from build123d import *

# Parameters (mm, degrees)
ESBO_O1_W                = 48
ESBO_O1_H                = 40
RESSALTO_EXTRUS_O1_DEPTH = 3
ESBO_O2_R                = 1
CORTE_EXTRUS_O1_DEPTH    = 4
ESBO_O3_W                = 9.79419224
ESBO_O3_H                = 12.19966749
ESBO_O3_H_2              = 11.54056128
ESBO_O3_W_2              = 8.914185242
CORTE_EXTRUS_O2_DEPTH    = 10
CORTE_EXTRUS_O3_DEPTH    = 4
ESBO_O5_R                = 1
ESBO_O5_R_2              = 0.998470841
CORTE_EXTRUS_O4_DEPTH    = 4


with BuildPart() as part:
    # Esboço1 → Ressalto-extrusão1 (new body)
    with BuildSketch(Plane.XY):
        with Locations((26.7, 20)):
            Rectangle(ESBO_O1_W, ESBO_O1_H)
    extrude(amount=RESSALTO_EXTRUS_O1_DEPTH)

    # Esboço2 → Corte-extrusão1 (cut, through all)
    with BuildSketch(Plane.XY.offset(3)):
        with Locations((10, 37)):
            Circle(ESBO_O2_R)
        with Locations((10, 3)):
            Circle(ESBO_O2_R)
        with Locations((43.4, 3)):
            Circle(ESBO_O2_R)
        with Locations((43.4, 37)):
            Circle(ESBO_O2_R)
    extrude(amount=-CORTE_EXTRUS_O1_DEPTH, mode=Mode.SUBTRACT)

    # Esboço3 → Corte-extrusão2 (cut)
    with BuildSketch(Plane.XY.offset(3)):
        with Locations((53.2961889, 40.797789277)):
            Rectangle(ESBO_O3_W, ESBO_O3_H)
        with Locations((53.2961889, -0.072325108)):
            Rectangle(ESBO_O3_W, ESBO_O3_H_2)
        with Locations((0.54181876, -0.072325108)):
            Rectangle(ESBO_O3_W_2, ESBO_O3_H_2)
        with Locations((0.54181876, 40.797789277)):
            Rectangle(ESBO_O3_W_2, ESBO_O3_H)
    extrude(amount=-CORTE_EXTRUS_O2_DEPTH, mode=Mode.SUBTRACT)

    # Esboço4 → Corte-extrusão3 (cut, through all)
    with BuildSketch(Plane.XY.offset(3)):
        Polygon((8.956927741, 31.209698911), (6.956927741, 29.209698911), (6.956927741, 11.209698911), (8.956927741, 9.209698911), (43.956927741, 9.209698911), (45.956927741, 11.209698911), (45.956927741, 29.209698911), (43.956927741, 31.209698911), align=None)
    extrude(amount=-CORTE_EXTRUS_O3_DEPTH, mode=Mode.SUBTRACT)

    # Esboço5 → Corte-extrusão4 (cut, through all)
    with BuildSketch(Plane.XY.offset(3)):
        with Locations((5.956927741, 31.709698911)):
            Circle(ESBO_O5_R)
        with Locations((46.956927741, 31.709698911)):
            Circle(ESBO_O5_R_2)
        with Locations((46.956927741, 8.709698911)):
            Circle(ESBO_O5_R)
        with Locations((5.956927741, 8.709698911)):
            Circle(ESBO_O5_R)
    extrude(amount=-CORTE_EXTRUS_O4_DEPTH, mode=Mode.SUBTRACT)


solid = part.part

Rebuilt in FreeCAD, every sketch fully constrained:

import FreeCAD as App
import Part
import Sketcher

V = App.Vector

doc = App.newDocument("Part")
body = doc.addObject("PartDesign::Body", "Body")

# Sketch on XY plane
sketch1 = body.newObject("Sketcher::SketchObject", "Sketch")
sketch1.AttachmentSupport = (doc.getObject("XY_Plane"), [""])
sketch1.MapMode = "FlatFace"
sketch1.addGeometry(Part.LineSegment(V(2.7, 40, 0), V(2.7, 0, 0)), False)
sketch1.addGeometry(Part.LineSegment(V(2.7, 0, 0), V(50.7, 0, 0)), False)
sketch1.addGeometry(Part.LineSegment(V(50.7, 0, 0), V(50.7, 40, 0)), False)
sketch1.addGeometry(Part.LineSegment(V(50.7, 40, 0), V(2.7, 40, 0)), False)
sketch1.addConstraint(Sketcher.Constraint("Coincident", 0, 2, 1, 1))
sketch1.addConstraint(Sketcher.Constraint("Coincident", 1, 2, 2, 1))
sketch1.addConstraint(Sketcher.Constraint("Coincident", 2, 2, 3, 1))
sketch1.addConstraint(Sketcher.Constraint("Coincident", 3, 2, 0, 1))
sketch1.addConstraint(Sketcher.Constraint("Vertical", 0))
sketch1.addConstraint(Sketcher.Constraint("Horizontal", 1))
sketch1.addConstraint(Sketcher.Constraint("Vertical", 2))
sketch1.addConstraint(Sketcher.Constraint("Horizontal", 3))
sketch1.addConstraint(Sketcher.Constraint("PointOnObject", 0, 2, -1))
sketch1.addConstraint(Sketcher.Constraint("DistanceX", 1, 1, 1, 2, 48.0))
sketch1.addConstraint(Sketcher.Constraint("DistanceY", 0, 2, 0, 1, 40.0))
sketch1.addConstraint(Sketcher.Constraint("DistanceX", -1, 1, 0, 2, 2.7))
pad1 = body.newObject("PartDesign::Pad", "Pad")
pad1.Profile = sketch1
pad1.Length = 3

# Sketch on XY plane
sketch2 = body.newObject("Sketcher::SketchObject", "Sketch001")
sketch2.AttachmentSupport = (doc.getObject("XY_Plane"), [""])
sketch2.MapMode = "FlatFace"
sketch2.AttachmentOffset = App.Placement(V(0, 0, 3), App.Rotation())
sketch2.addGeometry(Part.Circle(V(10, 37, 0), V(0, 0, 1), 1), False)
sketch2.addGeometry(Part.Circle(V(10, 3, 0), V(0, 0, 1), 1), False)
sketch2.addGeometry(Part.Circle(V(43.4, 3, 0), V(0, 0, 1), 1), False)
sketch2.addGeometry(Part.Circle(V(43.4, 37, 0), V(0, 0, 1), 1), False)
sketch2.addConstraint(Sketcher.Constraint("Equal", 0, 1))
sketch2.addConstraint(Sketcher.Constraint("Equal", 1, 2))
sketch2.addConstraint(Sketcher.Constraint("Equal", 2, 3))
sketch2.addConstraint(Sketcher.Constraint("Horizontal", 1, 3, 2, 3))
sketch2.addConstraint(Sketcher.Constraint("Horizontal", 0, 3, 3, 3))
sketch2.addConstraint(Sketcher.Constraint("Vertical", 0, 3, 1, 3))
sketch2.addConstraint(Sketcher.Constraint("Vertical", 2, 3, 3, 3))
sketch2.addConstraint(Sketcher.Constraint("Diameter", 0, 2.0))
sketch2.addConstraint(Sketcher.Constraint("DistanceX", -1, 1, 0, 3, 10.0))
sketch2.addConstraint(Sketcher.Constraint("DistanceY", -1, 1, 0, 3, 37.0))
sketch2.addConstraint(Sketcher.Constraint("DistanceY", -1, 1, 1, 3, 3.0))
sketch2.addConstraint(Sketcher.Constraint("DistanceX", -1, 1, 2, 3, 43.4))
pocket1 = body.newObject("PartDesign::Pocket", "Pocket")
pocket1.Profile = sketch2
pocket1.Type = "ThroughAll"

# Sketch on XY plane
sketch3 = body.newObject("Sketcher::SketchObject", "Sketch002")
sketch3.AttachmentSupport = (doc.getObject("XY_Plane"), [""])
sketch3.MapMode = "FlatFace"
sketch3.AttachmentOffset = App.Placement(V(0, 0, 3), App.Rotation())
sketch3.addGeometry(Part.LineSegment(V(48.399093, 46.897623, 0), V(48.399093, 34.697956, 0)), False)
sketch3.addGeometry(Part.LineSegment(V(48.399093, 34.697956, 0), V(58.193285, 34.697956, 0)), False)
sketch3.addGeometry(Part.LineSegment(V(58.193285, 34.697956, 0), V(58.193285, 46.897623, 0)), False)
sketch3.addGeometry(Part.LineSegment(V(58.193285, 46.897623, 0), V(48.399093, 46.897623, 0)), False)
sketch3.addGeometry(Part.LineSegment(V(48.399093, 5.697956, 0), V(48.399093, -5.842606, 0)), False)
sketch3.addGeometry(Part.LineSegment(V(48.399093, -5.842606, 0), V(58.193285, -5.842606, 0)), False)
sketch3.addGeometry(Part.LineSegment(V(58.193285, -5.842606, 0), V(58.193285, 5.697956, 0)), False)
sketch3.addGeometry(Part.LineSegment(V(58.193285, 5.697956, 0), V(48.399093, 5.697956, 0)), False)
sketch3.addGeometry(Part.LineSegment(V(-3.915274, 5.697956, 0), V(-3.915274, -5.842606, 0)), False)
sketch3.addGeometry(Part.LineSegment(V(-3.915274, -5.842606, 0), V(4.998911, -5.842606, 0)), False)
sketch3.addGeometry(Part.LineSegment(V(4.998911, -5.842606, 0), V(4.998911, 5.697956, 0)), False)
sketch3.addGeometry(Part.LineSegment(V(4.998911, 5.697956, 0), V(-3.915274, 5.697956, 0)), False)
sketch3.addGeometry(Part.LineSegment(V(-3.915274, 46.897623, 0), V(-3.915274, 34.697956, 0)), False)
sketch3.addGeometry(Part.LineSegment(V(-3.915274, 34.697956, 0), V(4.998911, 34.697956, 0)), False)
sketch3.addGeometry(Part.LineSegment(V(4.998911, 34.697956, 0), V(4.998911, 46.897623, 0)), False)
sketch3.addGeometry(Part.LineSegment(V(4.998911, 46.897623, 0), V(-3.915274, 46.897623, 0)), False)
sketch3.addConstraint(Sketcher.Constraint("Coincident", 0, 2, 1, 1))
sketch3.addConstraint(Sketcher.Constraint("Coincident", 1, 2, 2, 1))
sketch3.addConstraint(Sketcher.Constraint("Coincident", 2, 2, 3, 1))
sketch3.addConstraint(Sketcher.Constraint("Coincident", 3, 2, 0, 1))
sketch3.addConstraint(Sketcher.Constraint("Coincident", 4, 2, 5, 1))
sketch3.addConstraint(Sketcher.Constraint("Coincident", 5, 2, 6, 1))
sketch3.addConstraint(Sketcher.Constraint("Coincident", 6, 2, 7, 1))
sketch3.addConstraint(Sketcher.Constraint("Coincident", 7, 2, 4, 1))
sketch3.addConstraint(Sketcher.Constraint("Coincident", 8, 2, 9, 1))
sketch3.addConstraint(Sketcher.Constraint("Coincident", 9, 2, 10, 1))
sketch3.addConstraint(Sketcher.Constraint("Coincident", 10, 2, 11, 1))
sketch3.addConstraint(Sketcher.Constraint("Coincident", 11, 2, 8, 1))
sketch3.addConstraint(Sketcher.Constraint("Coincident", 12, 2, 13, 1))
sketch3.addConstraint(Sketcher.Constraint("Coincident", 13, 2, 14, 1))
sketch3.addConstraint(Sketcher.Constraint("Coincident", 14, 2, 15, 1))
sketch3.addConstraint(Sketcher.Constraint("Coincident", 15, 2, 12, 1))
sketch3.addConstraint(Sketcher.Constraint("Vertical", 0))
sketch3.addConstraint(Sketcher.Constraint("Horizontal", 1))
sketch3.addConstraint(Sketcher.Constraint("Vertical", 2))
sketch3.addConstraint(Sketcher.Constraint("Horizontal", 3))
sketch3.addConstraint(Sketcher.Constraint("Vertical", 4))
sketch3.addConstraint(Sketcher.Constraint("Horizontal", 5))
sketch3.addConstraint(Sketcher.Constraint("Vertical", 6))
sketch3.addConstraint(Sketcher.Constraint("Horizontal", 7))
sketch3.addConstraint(Sketcher.Constraint("Vertical", 8))
sketch3.addConstraint(Sketcher.Constraint("Horizontal", 9))
sketch3.addConstraint(Sketcher.Constraint("Vertical", 10))
sketch3.addConstraint(Sketcher.Constraint("Horizontal", 11))
sketch3.addConstraint(Sketcher.Constraint("Vertical", 12))
sketch3.addConstraint(Sketcher.Constraint("Horizontal", 13))
sketch3.addConstraint(Sketcher.Constraint("Vertical", 14))
sketch3.addConstraint(Sketcher.Constraint("Horizontal", 15))
sketch3.addConstraint(Sketcher.Constraint("Horizontal", 5, 2, 8, 2))
sketch3.addConstraint(Sketcher.Constraint("Horizontal", 7, 2, 10, 2))
sketch3.addConstraint(Sketcher.Constraint("Horizontal", 1, 2, 12, 2))
sketch3.addConstraint(Sketcher.Constraint("Horizontal", 3, 2, 14, 2))
sketch3.addConstraint(Sketcher.Constraint("Vertical", 3, 2, 4, 2))
sketch3.addConstraint(Sketcher.Constraint("Vertical", 2, 2, 5, 2))
sketch3.addConstraint(Sketcher.Constraint("Vertical", 11, 2, 12, 2))
sketch3.addConstraint(Sketcher.Constraint("Vertical", 10, 2, 13, 2))
sketch3.addConstraint(Sketcher.Constraint("DistanceY", 6, 2, 1, 2, 29.0))
sketch3.addConstraint(Sketcher.Constraint("DistanceY", 4, 2, 4, 1, 11.540561))
sketch3.addConstraint(Sketcher.Constraint("DistanceX", 1, 1, 1, 2, 9.794192))
sketch3.addConstraint(Sketcher.Constraint("DistanceX", 9, 1, 9, 2, 8.914185))
sketch3.addConstraint(Sketcher.Constraint("DistanceY", 0, 2, 0, 1, 12.199667))
sketch3.addConstraint(Sketcher.Constraint("DistanceX", -1, 1, 9, 2, 4.998911))
sketch3.addConstraint(Sketcher.Constraint("DistanceX", 8, 2, 5, 2, 62.108559))
sketch3.addConstraint(Sketcher.Constraint("DistanceY", -1, 1, 0, 2, 34.697956))
pocket2 = body.newObject("PartDesign::Pocket", "Pocket001")
pocket2.Profile = sketch3
pocket2.Length = 10

# Sketch on XY plane
sketch4 = body.newObject("Sketcher::SketchObject", "Sketch003")
sketch4.AttachmentSupport = (doc.getObject("XY_Plane"), [""])
sketch4.MapMode = "FlatFace"
sketch4.AttachmentOffset = App.Placement(V(0, 0, 3), App.Rotation())
sketch4.addGeometry(Part.LineSegment(V(8.956928, 31.209699, 0), V(6.956928, 29.209699, 0)), False)
sketch4.addGeometry(Part.LineSegment(V(6.956928, 29.209699, 0), V(6.956928, 11.209699, 0)), False)
sketch4.addGeometry(Part.LineSegment(V(6.956928, 11.209699, 0), V(8.956928, 9.209699, 0)), False)
sketch4.addGeometry(Part.LineSegment(V(8.956928, 9.209699, 0), V(43.956928, 9.209699, 0)), False)
sketch4.addGeometry(Part.LineSegment(V(43.956928, 9.209699, 0), V(45.956928, 11.209699, 0)), False)
sketch4.addGeometry(Part.LineSegment(V(45.956928, 11.209699, 0), V(45.956928, 29.209699, 0)), False)
sketch4.addGeometry(Part.LineSegment(V(45.956928, 29.209699, 0), V(43.956928, 31.209699, 0)), False)
sketch4.addGeometry(Part.LineSegment(V(43.956928, 31.209699, 0), V(8.956928, 31.209699, 0)), False)
sketch4.addConstraint(Sketcher.Constraint("Coincident", 0, 2, 1, 1))
sketch4.addConstraint(Sketcher.Constraint("Coincident", 1, 2, 2, 1))
sketch4.addConstraint(Sketcher.Constraint("Coincident", 2, 2, 3, 1))
sketch4.addConstraint(Sketcher.Constraint("Coincident", 3, 2, 4, 1))
sketch4.addConstraint(Sketcher.Constraint("Coincident", 4, 2, 5, 1))
sketch4.addConstraint(Sketcher.Constraint("Coincident", 5, 2, 6, 1))
sketch4.addConstraint(Sketcher.Constraint("Coincident", 6, 2, 7, 1))
sketch4.addConstraint(Sketcher.Constraint("Coincident", 7, 2, 0, 1))
sketch4.addConstraint(Sketcher.Constraint("Vertical", 1))
sketch4.addConstraint(Sketcher.Constraint("Horizontal", 3))
sketch4.addConstraint(Sketcher.Constraint("Vertical", 5))
sketch4.addConstraint(Sketcher.Constraint("Horizontal", 7))
sketch4.addConstraint(Sketcher.Constraint("Perpendicular", 0, 2))
sketch4.addConstraint(Sketcher.Constraint("Perpendicular", 2, 4))
sketch4.addConstraint(Sketcher.Constraint("Perpendicular", 4, 6))
sketch4.addConstraint(Sketcher.Constraint("Horizontal", 1, 2, 4, 2))
sketch4.addConstraint(Sketcher.Constraint("Horizontal", 0, 2, 5, 2))
sketch4.addConstraint(Sketcher.Constraint("Vertical", 3, 2, 6, 2))
sketch4.addConstraint(Sketcher.Constraint("Vertical", 2, 2, 7, 2))
sketch4.addConstraint(Sketcher.Constraint("DistanceX", 3, 1, 3, 2, 35.0))
sketch4.addConstraint(Sketcher.Constraint("DistanceY", 1, 2, 1, 1, 18.0))
sketch4.addConstraint(Sketcher.Constraint("DistanceX", 1, 2, 2, 2, 2.0))
sketch4.addConstraint(Sketcher.Constraint("DistanceY", -1, 1, 0, 2, 29.209699))
sketch4.addConstraint(Sketcher.Constraint("DistanceX", -1, 1, 0, 2, 6.956928))
pocket3 = body.newObject("PartDesign::Pocket", "Pocket002")
pocket3.Profile = sketch4
pocket3.Type = "ThroughAll"

# Sketch on XY plane
sketch5 = body.newObject("Sketcher::SketchObject", "Sketch004")
sketch5.AttachmentSupport = (doc.getObject("XY_Plane"), [""])
sketch5.MapMode = "FlatFace"
sketch5.AttachmentOffset = App.Placement(V(0, 0, 3), App.Rotation())
sketch5.addGeometry(Part.Circle(V(5.956928, 31.709699, 0), V(0, 0, 1), 1), False)
sketch5.addGeometry(Part.Circle(V(46.956928, 31.709699, 0), V(0, 0, 1), 0.998471), False)
sketch5.addGeometry(Part.Circle(V(46.956928, 8.709699, 0), V(0, 0, 1), 1), False)
sketch5.addGeometry(Part.Circle(V(5.956928, 8.709699, 0), V(0, 0, 1), 1), False)
sketch5.addConstraint(Sketcher.Constraint("Equal", 0, 2))
sketch5.addConstraint(Sketcher.Constraint("Equal", 2, 3))
sketch5.addConstraint(Sketcher.Constraint("Horizontal", 0, 3, 1, 3))
sketch5.addConstraint(Sketcher.Constraint("Horizontal", 2, 3, 3, 3))
sketch5.addConstraint(Sketcher.Constraint("Vertical", 1, 3, 2, 3))
sketch5.addConstraint(Sketcher.Constraint("Vertical", 0, 3, 3, 3))
sketch5.addConstraint(Sketcher.Constraint("Diameter", 0, 2.0))
sketch5.addConstraint(Sketcher.Constraint("DistanceX", 0, 3, 1, 3, 41.0))
sketch5.addConstraint(Sketcher.Constraint("DistanceY", 2, 3, 1, 3, 23.0))
sketch5.addConstraint(Sketcher.Constraint("Diameter", 1, 1.996942))
sketch5.addConstraint(Sketcher.Constraint("DistanceY", -1, 1, 0, 3, 31.709699))
sketch5.addConstraint(Sketcher.Constraint("DistanceX", -1, 1, 0, 3, 5.956928))
pocket4 = body.newObject("PartDesign::Pocket", "Pocket003")
pocket4.Profile = sketch5
pocket4.Type = "ThroughAll"

doc.recompute()
